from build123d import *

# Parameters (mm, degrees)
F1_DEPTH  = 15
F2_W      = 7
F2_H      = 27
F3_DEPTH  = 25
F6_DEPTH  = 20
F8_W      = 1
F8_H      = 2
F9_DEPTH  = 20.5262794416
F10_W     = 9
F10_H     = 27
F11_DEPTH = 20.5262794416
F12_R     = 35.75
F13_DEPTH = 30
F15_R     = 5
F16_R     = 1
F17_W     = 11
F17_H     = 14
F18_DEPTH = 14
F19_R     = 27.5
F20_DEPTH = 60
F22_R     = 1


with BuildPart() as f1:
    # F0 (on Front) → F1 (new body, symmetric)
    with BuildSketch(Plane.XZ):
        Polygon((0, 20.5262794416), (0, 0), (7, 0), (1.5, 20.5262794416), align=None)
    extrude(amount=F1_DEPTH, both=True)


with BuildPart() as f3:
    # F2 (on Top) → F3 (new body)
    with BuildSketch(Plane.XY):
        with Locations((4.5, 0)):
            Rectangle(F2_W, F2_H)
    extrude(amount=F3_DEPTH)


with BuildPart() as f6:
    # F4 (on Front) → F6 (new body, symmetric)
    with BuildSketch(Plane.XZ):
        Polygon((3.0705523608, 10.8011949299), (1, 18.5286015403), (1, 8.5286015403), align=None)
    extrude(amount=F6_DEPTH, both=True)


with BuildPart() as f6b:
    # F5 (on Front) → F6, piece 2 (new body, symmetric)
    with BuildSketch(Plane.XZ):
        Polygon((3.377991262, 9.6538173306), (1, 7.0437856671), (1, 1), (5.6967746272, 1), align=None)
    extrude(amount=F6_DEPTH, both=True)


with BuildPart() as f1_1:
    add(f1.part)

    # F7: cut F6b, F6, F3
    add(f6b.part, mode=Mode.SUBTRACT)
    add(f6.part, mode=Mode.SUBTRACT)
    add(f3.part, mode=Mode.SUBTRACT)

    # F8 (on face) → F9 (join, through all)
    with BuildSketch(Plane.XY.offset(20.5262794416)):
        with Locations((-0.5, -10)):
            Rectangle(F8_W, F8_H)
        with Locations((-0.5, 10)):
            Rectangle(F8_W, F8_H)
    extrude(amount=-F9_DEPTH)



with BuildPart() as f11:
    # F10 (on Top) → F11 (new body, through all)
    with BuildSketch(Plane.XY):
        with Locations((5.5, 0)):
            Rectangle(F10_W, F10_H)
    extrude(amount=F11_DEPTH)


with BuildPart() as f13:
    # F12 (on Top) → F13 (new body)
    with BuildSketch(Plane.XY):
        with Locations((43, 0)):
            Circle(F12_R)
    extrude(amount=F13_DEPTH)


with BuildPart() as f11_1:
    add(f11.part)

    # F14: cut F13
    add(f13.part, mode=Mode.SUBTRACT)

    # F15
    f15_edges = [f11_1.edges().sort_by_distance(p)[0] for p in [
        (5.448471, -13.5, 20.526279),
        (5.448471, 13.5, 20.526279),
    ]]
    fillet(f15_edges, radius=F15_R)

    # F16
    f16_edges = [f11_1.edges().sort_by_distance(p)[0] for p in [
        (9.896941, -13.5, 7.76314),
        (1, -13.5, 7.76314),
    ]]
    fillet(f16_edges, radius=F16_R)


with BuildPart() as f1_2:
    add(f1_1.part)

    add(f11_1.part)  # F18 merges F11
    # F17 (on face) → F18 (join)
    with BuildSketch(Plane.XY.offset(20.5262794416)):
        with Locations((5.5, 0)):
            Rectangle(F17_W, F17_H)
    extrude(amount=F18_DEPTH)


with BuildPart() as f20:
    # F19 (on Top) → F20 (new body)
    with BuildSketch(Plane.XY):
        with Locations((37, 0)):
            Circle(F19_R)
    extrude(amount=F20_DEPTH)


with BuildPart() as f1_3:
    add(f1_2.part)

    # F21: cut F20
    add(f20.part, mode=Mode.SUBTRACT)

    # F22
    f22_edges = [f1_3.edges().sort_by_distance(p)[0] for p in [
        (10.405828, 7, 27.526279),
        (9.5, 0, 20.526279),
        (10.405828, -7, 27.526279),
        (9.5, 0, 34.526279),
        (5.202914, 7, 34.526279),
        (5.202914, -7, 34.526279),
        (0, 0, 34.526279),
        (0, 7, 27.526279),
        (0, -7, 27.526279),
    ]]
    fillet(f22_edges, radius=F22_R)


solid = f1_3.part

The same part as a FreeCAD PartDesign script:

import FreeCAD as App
import Part
import Sketcher
Q = App.Units.Quantity


def edges_at(feature, points):
    """Names of the edges that pass closest to the given points."""
    edges = feature.Shape.Edges
    near = lambda p: min(range(len(edges)), key=lambda i: edges[i].distToShape(Part.Vertex(*p))[0])
    return sorted({f"Edge{near(p) + 1}" for p in points})


def add_polygon(sketch, points):
    """Adds a closed chain of lines whose ends are joined by coincident constraints."""
    first, n = sketch.GeometryCount, len(points)
    for a, b in zip(points, points[1:] + points[:1]):
        sketch.addGeometry(Part.LineSegment(App.Vector(*a, 0), App.Vector(*b, 0)), False)
    for i in range(n):
        sketch.addConstraint(Sketcher.Constraint("Coincident", first + i, 2, first + (i + 1) % n, 1))

doc = App.newDocument("Part")
body = doc.addObject("PartDesign::Body", "Body")

# Sketch on XZ plane
sketch1 = body.newObject("Sketcher::SketchObject", "Sketch")
sketch1.AttachmentSupport = (doc.getObject("XZ_Plane"), [""])
sketch1.MapMode = "FlatFace"
add_polygon(sketch1, [(0, 20.5), (0, 0), (7, 0), (1.5, 20.5)])  # lines 0-3
sketch1.addConstraint([
    Sketcher.Constraint("Vertical", 0),
    Sketcher.Constraint("Horizontal", 1),
    Sketcher.Constraint("Horizontal", 3),
    Sketcher.Constraint("Coincident", 0, 2, -1, 1),
    Sketcher.Constraint("DistanceX", 1, 1, 1, 2, Q("7 mm")),
    Sketcher.Constraint("Angle", 2, Q("105 deg")),
    Sketcher.Constraint("DistanceX", 3, 2, 3, 1, Q("1.5 mm")),
])
pad1 = body.newObject("PartDesign::Pad", "Pad")
pad1.Profile = sketch1
pad1.Length = 30
pad1.Midplane = True
body2 = doc.addObject("PartDesign::Body", "Body001")

# Sketch on XY plane
sketch2 = body2.newObject("Sketcher::SketchObject", "Sketch001")
sketch2.AttachmentSupport = (doc.getObject("XY_Plane001"), [""])
sketch2.MapMode = "FlatFace"
add_polygon(sketch2, [(1, 14), (1, -14), (8, -14), (8, 14)])  # lines 0-3
sketch2.addConstraint([
    Sketcher.Constraint("Vertical", 0),
    Sketcher.Constraint("Horizontal", 1),
    Sketcher.Constraint("Vertical", 2),
    Sketcher.Constraint("Horizontal", 3),
    Sketcher.Constraint("DistanceX", 1, 1, 1, 2, Q("7 mm")),
    Sketcher.Constraint("DistanceY", 0, 2, 0, 1, Q("27 mm")),
    Sketcher.Constraint("DistanceX", -1, 1, 0, 2, Q("1 mm")),
    Sketcher.Constraint("DistanceY", 0, 2, -1, 1, Q("13.5 mm")),
])
pad2 = body2.newObject("PartDesign::Pad", "Pad001")
pad2.Profile = sketch2
pad2.Length = 25
body3 = doc.addObject("PartDesign::Body", "Body002")

# Sketch on XZ plane
sketch3 = body3.newObject("Sketcher::SketchObject", "Sketch002")
sketch3.AttachmentSupport = (doc.getObject("XZ_Plane002"), [""])
sketch3.MapMode = "FlatFace"
add_polygon(sketch3, [(3.1, 10.8), (1, 18.5), (1, 8.5)])  # lines 0-2
sketch3.addConstraint([
    Sketcher.Constraint("Vertical", 1),
    Sketcher.Constraint("DistanceY", 1, 2, 1, 1, Q("10 mm")),
    Sketcher.Constraint("Angle", 0, Q("105 deg")),
    Sketcher.Constraint("Distance", 0, Q("8 mm")),
    Sketcher.Constraint("DistanceX", -1, 1, 0, 2, Q("1 mm")),
    Sketcher.Constraint("DistanceY", -1, 1, 0, 2, Q("18.528602 mm")),
])
pad3 = body3.newObject("PartDesign::Pad", "Pad002")
pad3.Profile = sketch3
pad3.Length = 40
pad3.Midplane = True
body4 = doc.addObject("PartDesign::Body", "Body003")

# Sketch on XZ plane
sketch4 = body4.newObject("Sketcher::SketchObject", "Sketch003")
sketch4.AttachmentSupport = (doc.getObject("XZ_Plane003"), [""])
sketch4.MapMode = "FlatFace"
add_polygon(sketch4, [(3.4, 9.7), (1, 7), (1, 1), (5.7, 1)])  # lines 0-3
sketch4.addConstraint([
    Sketcher.Constraint("Vertical", 1),
    Sketcher.Constraint("Horizontal", 2),
    Sketcher.Constraint("Angle", 3, Q("105 deg")),
    Sketcher.Constraint("DistanceX", -1, 1, 0, 2, Q("1 mm")),
    Sketcher.Constraint("DistanceY", -1, 1, 1, 2, Q("1 mm")),
    Sketcher.Constraint("Distance", 0, Q("3.530879 mm")),
    Sketcher.Constraint("Distance", 3, Q("8.959091 mm")),
    Sketcher.Constraint("DistanceX", 2, 1, 2, 2, Q("4.696775 mm")),
])
pad4 = body4.newObject("PartDesign::Pad", "Pad003")
pad4.Profile = sketch4
pad4.Length = 40
pad4.Midplane = True
doc.recompute()

boolean = body.newObject("PartDesign::Boolean", "Boolean")
boolean.Type = "Cut"
boolean.addObjects([body4])
doc.recompute()

boolean2 = body.newObject("PartDesign::Boolean", "Boolean001")
boolean2.Type = "Cut"
boolean2.addObjects([body3])
doc.recompute()

boolean3 = body.newObject("PartDesign::Boolean", "Boolean002")
boolean3.Type = "Cut"
boolean3.addObjects([body2])

# Sketch on XY plane
sketch5 = body.newObject("Sketcher::SketchObject", "Sketch004")
sketch5.AttachmentSupport = (doc.getObject("XY_Plane"), [""])
sketch5.MapMode = "FlatFace"
sketch5.AttachmentOffset = App.Placement(App.Vector(0, 0, 20.526279), App.Rotation())
add_polygon(sketch5, [(-1, -9), (-1, -11), (0, -11), (0, -9)])  # lines 0-3
add_polygon(sketch5, [(-1, 11), (-1, 9), (0, 9), (0, 11)])  # lines 4-7
sketch5.addConstraint([
    Sketcher.Constraint("Vertical", 0),
    Sketcher.Constraint("Horizontal", 1),
    Sketcher.Constraint("Vertical", 2),
    Sketcher.Constraint("Horizontal", 3),
    Sketcher.Constraint("Vertical", 4),
    Sketcher.Constraint("Horizontal", 5),
    Sketcher.Constraint("Vertical", 6),
    Sketcher.Constraint("Horizontal", 7),
    Sketcher.Constraint("Symmetric", 2, 2, 5, 2, -1, 1),
    Sketcher.Constraint("Symmetric", 1, 2, 6, 2, -1),
    Sketcher.Constraint("Vertical", 3, 2, 4, 2),
    Sketcher.Constraint("DistanceX", 1, 1, 1, 2, Q("1 mm")),
    Sketcher.Constraint("DistanceY", 0, 2, 0, 1, Q("2 mm")),
    Sketcher.Constraint("DistanceY", 0, 2, -1, 1, Q("11 mm")),
])
pad5 = body.newObject("PartDesign::Pad", "Pad004")
pad5.Profile = sketch5
pad5.Length = 20.526279
pad5.Reversed = True
body5 = doc.addObject("PartDesign::Body", "Body004")

# Sketch on XY plane
sketch6 = body5.newObject("Sketcher::SketchObject", "Sketch005")
sketch6.AttachmentSupport = (doc.getObject("XY_Plane004"), [""])
sketch6.MapMode = "FlatFace"
add_polygon(sketch6, [(1, 14), (1, -14), (10, -14), (10, 14)])  # lines 0-3
sketch6.addConstraint([
    Sketcher.Constraint("Vertical", 0),
    Sketcher.Constraint("Horizontal", 1),
    Sketcher.Constraint("Vertical", 2),
    Sketcher.Constraint("Horizontal", 3),
    Sketcher.Constraint("DistanceX", 1, 1, 1, 2, Q("9 mm")),
    Sketcher.Constraint("DistanceY", 0, 2, 0, 1, Q("27 mm")),
    Sketcher.Constraint("DistanceX", -1, 1, 0, 2, Q("1 mm")),
    Sketcher.Constraint("DistanceY", 0, 2, -1, 1, Q("13.5 mm")),
])
pad6 = body5.newObject("PartDesign::Pad", "Pad005")
pad6.Profile = sketch6
pad6.Length = 20.526279
body6 = doc.addObject("PartDesign::Body", "Body005")

# Sketch on XY plane
sketch7 = body6.newObject("Sketcher::SketchObject", "Sketch006")
sketch7.AttachmentSupport = (doc.getObject("XY_Plane005"), [""])
sketch7.MapMode = "FlatFace"
sketch7.addGeometry(Part.Circle(App.Vector(43, 0, 0), App.Vector(0, 0, 1), 36), False)
sketch7.addConstraint([
    Sketcher.Constraint("PointOnObject", 0, 3, -1),
    Sketcher.Constraint("Diameter", 0, Q("71.5 mm")),
    Sketcher.Constraint("DistanceX", -1, 1, 0, 3, Q("43 mm")),
])
pad7 = body6.newObject("PartDesign::Pad", "Pad006")
pad7.Profile = sketch7
pad7.Length = 30
doc.recompute()

boolean4 = body5.newObject("PartDesign::Boolean", "Boolean003")
boolean4.Type = "Cut"
boolean4.addObjects([body6])
doc.recompute()

fillet = body5.newObject("PartDesign::Fillet", "Fillet")
fillet.Base = (boolean4, edges_at(boolean4, [(5.448, -13.5, 20.526), (5.448, 13.5, 20.526)]))
fillet.Radius = 5
doc.recompute()

fillet2 = body5.newObject("PartDesign::Fillet", "Fillet001")
fillet2.Base = (fillet, edges_at(fillet, [(9.897, -13.5, 7.763), (1, -13.5, 7.763)]))
fillet2.Radius = 1
doc.recompute()

boolean5 = body.newObject("PartDesign::Boolean", "Boolean004")
boolean5.Type = "Fuse"
boolean5.addObjects([body5])

# Sketch on XY plane
sketch8 = body.newObject("Sketcher::SketchObject", "Sketch007")
sketch8.AttachmentSupport = (doc.getObject("XY_Plane"), [""])
sketch8.MapMode = "FlatFace"
sketch8.AttachmentOffset = App.Placement(App.Vector(0, 0, 20.526279), App.Rotation())
add_polygon(sketch8, [(0, 7), (0, -7), (11, -7), (11, 7)])  # lines 0-3
sketch8.addConstraint([
    Sketcher.Constraint("Vertical", 0),
    Sketcher.Constraint("Horizontal", 1),
    Sketcher.Constraint("Vertical", 2),
    Sketcher.Constraint("Horizontal", 3),
    Sketcher.Constraint("Symmetric", 0, 2, 3, 2, -1, 1),
    Sketcher.Constraint("DistanceX", 1, 1, 1, 2, Q("11 mm")),
    Sketcher.Constraint("DistanceY", 0, 2, 0, 1, Q("14 mm")),
])
pad8 = body.newObject("PartDesign::Pad", "Pad007")
pad8.Profile = sketch8
pad8.Length = 14
body7 = doc.addObject("PartDesign::Body", "Body006")

# Sketch on XY plane
sketch9 = body7.newObject("Sketcher::SketchObject", "Sketch008")
sketch9.AttachmentSupport = (doc.getObject("XY_Plane006"), [""])
sketch9.MapMode = "FlatFace"
sketch9.addGeometry(Part.Circle(App.Vector(37, 0, 0), App.Vector(0, 0, 1), 28), False)
sketch9.addConstraint([
    Sketcher.Constraint("PointOnObject", 0, 3, -1),
    Sketcher.Constraint("Diameter", 0, Q("55 mm")),
    Sketcher.Constraint("DistanceX", -1, 1, 0, 3, Q("37 mm")),
])
pad9 = body7.newObject("PartDesign::Pad", "Pad008")
pad9.Profile = sketch9
pad9.Length = 60
doc.recompute()

boolean6 = body.newObject("PartDesign::Boolean", "Boolean005")
boolean6.Type = "Cut"
boolean6.addObjects([body7])
doc.recompute()

fillet3 = body.newObject("PartDesign::Fillet", "Fillet002")
fillet3.Base = (boolean6, edges_at(boolean6, [
    (10.406, 7, 27.526),
    (9.5, 0, 20.526),
    (10.406, -7, 27.526),
    (9.5, 0, 34.526),
    (5.203, 7, 34.526),
    (5.203, -7, 34.526),
    (0, 0, 34.526),
    (0, 7, 27.526),
    (0, -7, 27.526),
]))
fillet3.Radius = 1

doc.recompute()
